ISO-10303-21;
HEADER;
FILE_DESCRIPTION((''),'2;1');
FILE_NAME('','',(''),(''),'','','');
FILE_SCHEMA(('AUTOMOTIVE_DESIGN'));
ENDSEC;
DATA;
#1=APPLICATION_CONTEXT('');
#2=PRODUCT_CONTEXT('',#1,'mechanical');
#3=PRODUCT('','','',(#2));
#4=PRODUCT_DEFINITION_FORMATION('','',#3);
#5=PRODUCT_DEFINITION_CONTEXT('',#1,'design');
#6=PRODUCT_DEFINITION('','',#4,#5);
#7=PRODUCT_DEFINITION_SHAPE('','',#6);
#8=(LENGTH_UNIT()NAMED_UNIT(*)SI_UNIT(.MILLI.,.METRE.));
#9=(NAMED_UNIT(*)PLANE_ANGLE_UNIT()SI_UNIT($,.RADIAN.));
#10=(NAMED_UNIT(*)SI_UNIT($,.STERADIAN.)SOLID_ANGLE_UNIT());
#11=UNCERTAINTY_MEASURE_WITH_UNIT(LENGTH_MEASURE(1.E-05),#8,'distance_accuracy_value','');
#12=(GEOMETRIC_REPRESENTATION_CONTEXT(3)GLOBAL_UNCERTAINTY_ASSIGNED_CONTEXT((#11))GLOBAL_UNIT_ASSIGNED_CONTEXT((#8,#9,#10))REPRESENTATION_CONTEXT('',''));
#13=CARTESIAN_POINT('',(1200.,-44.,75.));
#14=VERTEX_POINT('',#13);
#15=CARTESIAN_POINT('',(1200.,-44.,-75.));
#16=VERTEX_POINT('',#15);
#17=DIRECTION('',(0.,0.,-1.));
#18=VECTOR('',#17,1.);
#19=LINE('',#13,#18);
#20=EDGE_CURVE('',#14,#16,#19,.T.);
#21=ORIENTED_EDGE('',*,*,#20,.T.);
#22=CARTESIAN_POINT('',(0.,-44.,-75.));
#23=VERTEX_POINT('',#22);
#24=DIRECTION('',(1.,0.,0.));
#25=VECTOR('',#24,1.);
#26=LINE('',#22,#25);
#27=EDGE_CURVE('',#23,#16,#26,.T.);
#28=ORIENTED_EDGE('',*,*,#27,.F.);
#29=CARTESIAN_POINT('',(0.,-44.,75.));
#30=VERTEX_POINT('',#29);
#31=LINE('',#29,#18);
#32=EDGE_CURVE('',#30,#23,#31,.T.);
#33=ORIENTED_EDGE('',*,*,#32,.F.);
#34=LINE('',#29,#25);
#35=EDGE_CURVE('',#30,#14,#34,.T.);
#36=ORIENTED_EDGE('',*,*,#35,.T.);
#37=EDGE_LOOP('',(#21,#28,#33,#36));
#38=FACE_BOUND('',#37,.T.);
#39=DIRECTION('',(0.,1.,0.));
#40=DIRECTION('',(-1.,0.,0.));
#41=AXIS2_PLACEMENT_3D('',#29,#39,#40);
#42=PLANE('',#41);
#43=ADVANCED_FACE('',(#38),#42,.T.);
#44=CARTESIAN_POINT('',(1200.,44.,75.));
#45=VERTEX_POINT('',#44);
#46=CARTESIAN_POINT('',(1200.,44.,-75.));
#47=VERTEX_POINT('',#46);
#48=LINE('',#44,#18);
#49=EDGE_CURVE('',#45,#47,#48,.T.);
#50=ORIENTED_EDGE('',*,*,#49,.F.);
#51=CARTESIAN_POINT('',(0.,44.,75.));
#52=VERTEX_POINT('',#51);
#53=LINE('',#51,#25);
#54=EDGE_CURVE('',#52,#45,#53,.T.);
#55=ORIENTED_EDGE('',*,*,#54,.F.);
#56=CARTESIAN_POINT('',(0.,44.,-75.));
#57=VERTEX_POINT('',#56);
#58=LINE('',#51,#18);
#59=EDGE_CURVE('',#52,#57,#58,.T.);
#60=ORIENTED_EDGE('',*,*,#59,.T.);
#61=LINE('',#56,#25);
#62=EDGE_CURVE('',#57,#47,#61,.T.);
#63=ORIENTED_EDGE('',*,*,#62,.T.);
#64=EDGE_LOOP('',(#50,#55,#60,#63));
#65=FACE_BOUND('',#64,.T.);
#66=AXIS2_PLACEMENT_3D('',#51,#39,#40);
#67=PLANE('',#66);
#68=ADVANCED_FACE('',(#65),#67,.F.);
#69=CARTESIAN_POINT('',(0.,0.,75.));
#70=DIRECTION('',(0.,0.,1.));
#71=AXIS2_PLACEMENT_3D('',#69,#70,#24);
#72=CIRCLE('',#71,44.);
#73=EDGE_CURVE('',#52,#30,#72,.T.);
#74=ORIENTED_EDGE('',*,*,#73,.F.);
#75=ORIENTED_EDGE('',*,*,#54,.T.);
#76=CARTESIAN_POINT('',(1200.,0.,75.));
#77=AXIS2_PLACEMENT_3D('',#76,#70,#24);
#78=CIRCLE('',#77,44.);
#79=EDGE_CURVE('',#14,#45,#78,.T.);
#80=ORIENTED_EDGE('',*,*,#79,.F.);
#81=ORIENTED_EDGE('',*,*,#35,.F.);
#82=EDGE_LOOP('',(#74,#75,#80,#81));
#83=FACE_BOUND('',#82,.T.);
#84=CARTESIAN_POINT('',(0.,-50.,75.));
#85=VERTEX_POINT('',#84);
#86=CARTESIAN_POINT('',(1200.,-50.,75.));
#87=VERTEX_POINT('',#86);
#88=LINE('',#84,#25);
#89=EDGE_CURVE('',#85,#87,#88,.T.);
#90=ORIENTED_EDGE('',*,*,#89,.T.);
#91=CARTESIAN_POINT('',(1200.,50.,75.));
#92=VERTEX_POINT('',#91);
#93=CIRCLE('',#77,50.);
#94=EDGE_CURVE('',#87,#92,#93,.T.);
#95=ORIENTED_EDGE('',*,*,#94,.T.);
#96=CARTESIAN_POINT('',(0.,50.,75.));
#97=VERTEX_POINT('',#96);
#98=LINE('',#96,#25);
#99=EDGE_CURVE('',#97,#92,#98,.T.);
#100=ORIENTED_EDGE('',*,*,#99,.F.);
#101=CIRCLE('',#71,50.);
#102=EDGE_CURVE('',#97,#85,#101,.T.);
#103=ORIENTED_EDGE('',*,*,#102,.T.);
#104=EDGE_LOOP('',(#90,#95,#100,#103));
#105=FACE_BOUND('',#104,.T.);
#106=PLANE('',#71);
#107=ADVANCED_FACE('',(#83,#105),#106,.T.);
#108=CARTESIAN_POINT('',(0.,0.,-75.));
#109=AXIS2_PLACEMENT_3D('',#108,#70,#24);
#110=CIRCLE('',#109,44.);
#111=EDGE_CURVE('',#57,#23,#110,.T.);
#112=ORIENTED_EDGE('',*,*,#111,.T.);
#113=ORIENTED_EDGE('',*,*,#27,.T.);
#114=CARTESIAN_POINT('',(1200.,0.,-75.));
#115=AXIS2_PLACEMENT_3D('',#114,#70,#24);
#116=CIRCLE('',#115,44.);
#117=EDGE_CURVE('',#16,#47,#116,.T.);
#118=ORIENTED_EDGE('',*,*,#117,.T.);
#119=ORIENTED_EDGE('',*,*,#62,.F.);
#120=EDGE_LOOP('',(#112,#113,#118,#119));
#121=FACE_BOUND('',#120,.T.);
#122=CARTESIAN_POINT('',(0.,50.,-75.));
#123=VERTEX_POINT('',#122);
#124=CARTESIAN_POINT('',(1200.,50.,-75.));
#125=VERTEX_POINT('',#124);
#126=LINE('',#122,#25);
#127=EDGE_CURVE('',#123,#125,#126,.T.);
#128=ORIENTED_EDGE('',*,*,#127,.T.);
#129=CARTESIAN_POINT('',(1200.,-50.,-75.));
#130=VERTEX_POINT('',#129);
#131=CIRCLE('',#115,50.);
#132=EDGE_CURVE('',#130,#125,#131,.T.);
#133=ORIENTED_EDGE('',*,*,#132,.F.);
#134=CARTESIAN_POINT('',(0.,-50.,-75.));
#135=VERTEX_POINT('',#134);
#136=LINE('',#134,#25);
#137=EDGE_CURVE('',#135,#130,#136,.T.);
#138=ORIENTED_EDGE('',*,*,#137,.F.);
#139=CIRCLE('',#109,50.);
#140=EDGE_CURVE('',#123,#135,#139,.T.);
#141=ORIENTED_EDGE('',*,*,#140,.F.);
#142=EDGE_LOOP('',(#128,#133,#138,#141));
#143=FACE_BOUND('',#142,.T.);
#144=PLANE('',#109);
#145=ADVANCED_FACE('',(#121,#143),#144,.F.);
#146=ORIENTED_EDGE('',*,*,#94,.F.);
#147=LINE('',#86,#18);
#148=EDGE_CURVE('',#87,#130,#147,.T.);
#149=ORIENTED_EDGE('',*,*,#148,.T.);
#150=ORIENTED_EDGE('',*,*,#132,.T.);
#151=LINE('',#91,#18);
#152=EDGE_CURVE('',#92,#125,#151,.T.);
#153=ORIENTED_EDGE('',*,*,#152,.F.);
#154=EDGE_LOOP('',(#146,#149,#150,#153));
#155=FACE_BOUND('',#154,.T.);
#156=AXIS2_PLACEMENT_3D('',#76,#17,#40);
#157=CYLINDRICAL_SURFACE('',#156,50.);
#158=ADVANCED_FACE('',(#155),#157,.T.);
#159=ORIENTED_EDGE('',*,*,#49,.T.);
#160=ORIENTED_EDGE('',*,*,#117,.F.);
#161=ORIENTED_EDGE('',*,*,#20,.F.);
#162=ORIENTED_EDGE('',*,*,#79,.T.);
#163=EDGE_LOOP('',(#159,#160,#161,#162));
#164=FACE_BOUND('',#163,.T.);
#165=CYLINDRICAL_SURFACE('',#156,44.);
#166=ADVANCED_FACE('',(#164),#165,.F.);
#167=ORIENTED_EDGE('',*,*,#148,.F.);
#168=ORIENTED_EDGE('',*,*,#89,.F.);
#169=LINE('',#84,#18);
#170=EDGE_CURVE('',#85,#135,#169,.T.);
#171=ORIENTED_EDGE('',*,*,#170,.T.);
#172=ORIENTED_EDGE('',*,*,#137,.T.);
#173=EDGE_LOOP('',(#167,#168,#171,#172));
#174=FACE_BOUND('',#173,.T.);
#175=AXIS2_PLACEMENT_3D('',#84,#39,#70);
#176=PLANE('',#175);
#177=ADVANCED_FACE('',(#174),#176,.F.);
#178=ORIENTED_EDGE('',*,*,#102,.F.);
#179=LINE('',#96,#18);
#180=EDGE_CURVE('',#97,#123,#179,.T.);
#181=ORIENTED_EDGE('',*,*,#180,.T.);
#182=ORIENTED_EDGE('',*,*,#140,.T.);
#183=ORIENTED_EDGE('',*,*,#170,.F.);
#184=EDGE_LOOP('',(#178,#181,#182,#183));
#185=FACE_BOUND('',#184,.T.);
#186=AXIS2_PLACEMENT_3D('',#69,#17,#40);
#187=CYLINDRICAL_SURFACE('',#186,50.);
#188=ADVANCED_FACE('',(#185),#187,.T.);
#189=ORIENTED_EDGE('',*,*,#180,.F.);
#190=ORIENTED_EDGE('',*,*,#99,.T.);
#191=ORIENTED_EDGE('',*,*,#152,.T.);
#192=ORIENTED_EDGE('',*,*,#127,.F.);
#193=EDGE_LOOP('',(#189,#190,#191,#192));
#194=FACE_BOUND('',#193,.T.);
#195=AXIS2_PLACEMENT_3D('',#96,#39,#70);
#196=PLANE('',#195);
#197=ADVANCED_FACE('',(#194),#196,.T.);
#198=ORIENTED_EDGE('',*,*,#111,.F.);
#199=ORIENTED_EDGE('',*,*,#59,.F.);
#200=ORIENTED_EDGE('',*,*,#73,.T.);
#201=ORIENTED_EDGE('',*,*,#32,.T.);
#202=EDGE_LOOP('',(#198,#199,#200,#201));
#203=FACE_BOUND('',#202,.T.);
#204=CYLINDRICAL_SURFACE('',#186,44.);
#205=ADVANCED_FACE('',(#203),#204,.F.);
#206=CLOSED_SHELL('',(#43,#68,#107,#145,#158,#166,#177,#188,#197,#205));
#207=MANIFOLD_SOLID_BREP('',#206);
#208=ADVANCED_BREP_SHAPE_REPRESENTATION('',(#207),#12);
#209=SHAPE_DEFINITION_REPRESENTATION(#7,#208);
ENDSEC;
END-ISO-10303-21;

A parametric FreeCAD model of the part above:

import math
import FreeCAD as App
import Part
import Sketcher
from FreeCAD import Vector

doc = App.newDocument("Part")
params = doc.addObject("Spreadsheet::Sheet", "Params")
for row, (alias, value) in enumerate([
    ("sketch1_radius", "50 mm"),
    ("sketch1_radius2", "44 mm"),
    ("sketch1_width", "1200 mm"),
    ("pad1_length", "150 mm"),
], start=1):
    params.set(f"A{row}", alias)
    params.set(f"B{row}", "=" + value)
    params.setAlias(f"B{row}", alias)

body = doc.addObject("PartDesign::Body", "Body")

# Sketch on XY plane
sketch1 = body.newObject("Sketcher::SketchObject", "Sketch")
sketch1.AttachmentSupport = (doc.getObject("XY_Plane"), [""])
sketch1.MapMode = "FlatFace"
sketch1.addGeometry(Part.LineSegment(Vector(0, -50, 0), Vector(1200, -50, 0)), False)
sketch1.addGeometry(Part.ArcOfCircle(Part.Circle(Vector(1200, 0, 0), Vector(0, 0, 1), 50), math.radians(-90), math.radians(90)), False)
sketch1.addGeometry(Part.LineSegment(Vector(1200, 50, 0), Vector(0, 50, 0)), False)
sketch1.addGeometry(Part.ArcOfCircle(Part.Circle(Vector(0, 0, 0), Vector(0, 0, 1), 50), math.radians(90), math.radians(270)), False)
sketch1.addGeometry(Part.ArcOfCircle(Part.Circle(Vector(0, 0, 0), Vector(0, 0, 1), 44), math.radians(90), math.radians(270)), False)
sketch1.addGeometry(Part.LineSegment(Vector(0, 44, 0), Vector(1200, 44, 0)), False)
sketch1.addGeometry(Part.ArcOfCircle(Part.Circle(Vector(1200, 0, 0), Vector(0, 0, 1), 44), math.radians(-90), math.radians(90)), False)
sketch1.addGeometry(Part.LineSegment(Vector(1200, -44, 0), Vector(0, -44, 0)), False)
sketch1.addConstraint(Sketcher.Constraint("Tangent", 0, 2, 1, 1))
sketch1.addConstraint(Sketcher.Constraint("Tangent", 1, 2, 2, 1))
sketch1.addConstraint(Sketcher.Constraint("Tangent", 2, 2, 3, 1))
sketch1.addConstraint(Sketcher.Constraint("Tangent", 3, 2, 0, 1))
sketch1.addConstraint(Sketcher.Constraint("Tangent", 4, 1, 5, 1))
sketch1.addConstraint(Sketcher.Constraint("Tangent", 5, 2, 6, 2))
sketch1.addConstraint(Sketcher.Constraint("Tangent", 6, 1, 7, 1))
sketch1.addConstraint(Sketcher.Constraint("Tangent", 7, 2, 4, 2))
sketch1.addConstraint(Sketcher.Constraint("Horizontal", 0))
sketch1.addConstraint(Sketcher.Constraint("Horizontal", 2))
sketch1.addConstraint(Sketcher.Constraint("Horizontal", 5))
sketch1.addConstraint(Sketcher.Constraint("Horizontal", 7))
sketch1.addConstraint(Sketcher.Constraint("Coincident", 3, 3, -1, 1))
sketch1.addConstraint(Sketcher.Constraint("Coincident", 4, 3, -1, 1))
sketch1.addConstraint(Sketcher.Constraint("Vertical", 6, 3, 0, 2))
sketch1.addConstraint(Sketcher.Constraint("Radius", 1, 50.0))
sketch1.addConstraint(Sketcher.Constraint("Radius", 4, 44.0))
sketch1.addConstraint(Sketcher.Constraint("DistanceX", 0, 1, 0, 2, 1200.0))
sketch1.setExpression("Constraints[15]", "Params.sketch1_radius")
sketch1.setExpression("Constraints[16]", "Params.sketch1_radius2")
sketch1.setExpression("Constraints[17]", "Params.sketch1_width")
pad1 = body.newObject("PartDesign::Pad", "Pad")
pad1.Profile = sketch1
pad1.setExpression("Length", "Params.pad1_length")
pad1.Midplane = True

doc.recompute()
